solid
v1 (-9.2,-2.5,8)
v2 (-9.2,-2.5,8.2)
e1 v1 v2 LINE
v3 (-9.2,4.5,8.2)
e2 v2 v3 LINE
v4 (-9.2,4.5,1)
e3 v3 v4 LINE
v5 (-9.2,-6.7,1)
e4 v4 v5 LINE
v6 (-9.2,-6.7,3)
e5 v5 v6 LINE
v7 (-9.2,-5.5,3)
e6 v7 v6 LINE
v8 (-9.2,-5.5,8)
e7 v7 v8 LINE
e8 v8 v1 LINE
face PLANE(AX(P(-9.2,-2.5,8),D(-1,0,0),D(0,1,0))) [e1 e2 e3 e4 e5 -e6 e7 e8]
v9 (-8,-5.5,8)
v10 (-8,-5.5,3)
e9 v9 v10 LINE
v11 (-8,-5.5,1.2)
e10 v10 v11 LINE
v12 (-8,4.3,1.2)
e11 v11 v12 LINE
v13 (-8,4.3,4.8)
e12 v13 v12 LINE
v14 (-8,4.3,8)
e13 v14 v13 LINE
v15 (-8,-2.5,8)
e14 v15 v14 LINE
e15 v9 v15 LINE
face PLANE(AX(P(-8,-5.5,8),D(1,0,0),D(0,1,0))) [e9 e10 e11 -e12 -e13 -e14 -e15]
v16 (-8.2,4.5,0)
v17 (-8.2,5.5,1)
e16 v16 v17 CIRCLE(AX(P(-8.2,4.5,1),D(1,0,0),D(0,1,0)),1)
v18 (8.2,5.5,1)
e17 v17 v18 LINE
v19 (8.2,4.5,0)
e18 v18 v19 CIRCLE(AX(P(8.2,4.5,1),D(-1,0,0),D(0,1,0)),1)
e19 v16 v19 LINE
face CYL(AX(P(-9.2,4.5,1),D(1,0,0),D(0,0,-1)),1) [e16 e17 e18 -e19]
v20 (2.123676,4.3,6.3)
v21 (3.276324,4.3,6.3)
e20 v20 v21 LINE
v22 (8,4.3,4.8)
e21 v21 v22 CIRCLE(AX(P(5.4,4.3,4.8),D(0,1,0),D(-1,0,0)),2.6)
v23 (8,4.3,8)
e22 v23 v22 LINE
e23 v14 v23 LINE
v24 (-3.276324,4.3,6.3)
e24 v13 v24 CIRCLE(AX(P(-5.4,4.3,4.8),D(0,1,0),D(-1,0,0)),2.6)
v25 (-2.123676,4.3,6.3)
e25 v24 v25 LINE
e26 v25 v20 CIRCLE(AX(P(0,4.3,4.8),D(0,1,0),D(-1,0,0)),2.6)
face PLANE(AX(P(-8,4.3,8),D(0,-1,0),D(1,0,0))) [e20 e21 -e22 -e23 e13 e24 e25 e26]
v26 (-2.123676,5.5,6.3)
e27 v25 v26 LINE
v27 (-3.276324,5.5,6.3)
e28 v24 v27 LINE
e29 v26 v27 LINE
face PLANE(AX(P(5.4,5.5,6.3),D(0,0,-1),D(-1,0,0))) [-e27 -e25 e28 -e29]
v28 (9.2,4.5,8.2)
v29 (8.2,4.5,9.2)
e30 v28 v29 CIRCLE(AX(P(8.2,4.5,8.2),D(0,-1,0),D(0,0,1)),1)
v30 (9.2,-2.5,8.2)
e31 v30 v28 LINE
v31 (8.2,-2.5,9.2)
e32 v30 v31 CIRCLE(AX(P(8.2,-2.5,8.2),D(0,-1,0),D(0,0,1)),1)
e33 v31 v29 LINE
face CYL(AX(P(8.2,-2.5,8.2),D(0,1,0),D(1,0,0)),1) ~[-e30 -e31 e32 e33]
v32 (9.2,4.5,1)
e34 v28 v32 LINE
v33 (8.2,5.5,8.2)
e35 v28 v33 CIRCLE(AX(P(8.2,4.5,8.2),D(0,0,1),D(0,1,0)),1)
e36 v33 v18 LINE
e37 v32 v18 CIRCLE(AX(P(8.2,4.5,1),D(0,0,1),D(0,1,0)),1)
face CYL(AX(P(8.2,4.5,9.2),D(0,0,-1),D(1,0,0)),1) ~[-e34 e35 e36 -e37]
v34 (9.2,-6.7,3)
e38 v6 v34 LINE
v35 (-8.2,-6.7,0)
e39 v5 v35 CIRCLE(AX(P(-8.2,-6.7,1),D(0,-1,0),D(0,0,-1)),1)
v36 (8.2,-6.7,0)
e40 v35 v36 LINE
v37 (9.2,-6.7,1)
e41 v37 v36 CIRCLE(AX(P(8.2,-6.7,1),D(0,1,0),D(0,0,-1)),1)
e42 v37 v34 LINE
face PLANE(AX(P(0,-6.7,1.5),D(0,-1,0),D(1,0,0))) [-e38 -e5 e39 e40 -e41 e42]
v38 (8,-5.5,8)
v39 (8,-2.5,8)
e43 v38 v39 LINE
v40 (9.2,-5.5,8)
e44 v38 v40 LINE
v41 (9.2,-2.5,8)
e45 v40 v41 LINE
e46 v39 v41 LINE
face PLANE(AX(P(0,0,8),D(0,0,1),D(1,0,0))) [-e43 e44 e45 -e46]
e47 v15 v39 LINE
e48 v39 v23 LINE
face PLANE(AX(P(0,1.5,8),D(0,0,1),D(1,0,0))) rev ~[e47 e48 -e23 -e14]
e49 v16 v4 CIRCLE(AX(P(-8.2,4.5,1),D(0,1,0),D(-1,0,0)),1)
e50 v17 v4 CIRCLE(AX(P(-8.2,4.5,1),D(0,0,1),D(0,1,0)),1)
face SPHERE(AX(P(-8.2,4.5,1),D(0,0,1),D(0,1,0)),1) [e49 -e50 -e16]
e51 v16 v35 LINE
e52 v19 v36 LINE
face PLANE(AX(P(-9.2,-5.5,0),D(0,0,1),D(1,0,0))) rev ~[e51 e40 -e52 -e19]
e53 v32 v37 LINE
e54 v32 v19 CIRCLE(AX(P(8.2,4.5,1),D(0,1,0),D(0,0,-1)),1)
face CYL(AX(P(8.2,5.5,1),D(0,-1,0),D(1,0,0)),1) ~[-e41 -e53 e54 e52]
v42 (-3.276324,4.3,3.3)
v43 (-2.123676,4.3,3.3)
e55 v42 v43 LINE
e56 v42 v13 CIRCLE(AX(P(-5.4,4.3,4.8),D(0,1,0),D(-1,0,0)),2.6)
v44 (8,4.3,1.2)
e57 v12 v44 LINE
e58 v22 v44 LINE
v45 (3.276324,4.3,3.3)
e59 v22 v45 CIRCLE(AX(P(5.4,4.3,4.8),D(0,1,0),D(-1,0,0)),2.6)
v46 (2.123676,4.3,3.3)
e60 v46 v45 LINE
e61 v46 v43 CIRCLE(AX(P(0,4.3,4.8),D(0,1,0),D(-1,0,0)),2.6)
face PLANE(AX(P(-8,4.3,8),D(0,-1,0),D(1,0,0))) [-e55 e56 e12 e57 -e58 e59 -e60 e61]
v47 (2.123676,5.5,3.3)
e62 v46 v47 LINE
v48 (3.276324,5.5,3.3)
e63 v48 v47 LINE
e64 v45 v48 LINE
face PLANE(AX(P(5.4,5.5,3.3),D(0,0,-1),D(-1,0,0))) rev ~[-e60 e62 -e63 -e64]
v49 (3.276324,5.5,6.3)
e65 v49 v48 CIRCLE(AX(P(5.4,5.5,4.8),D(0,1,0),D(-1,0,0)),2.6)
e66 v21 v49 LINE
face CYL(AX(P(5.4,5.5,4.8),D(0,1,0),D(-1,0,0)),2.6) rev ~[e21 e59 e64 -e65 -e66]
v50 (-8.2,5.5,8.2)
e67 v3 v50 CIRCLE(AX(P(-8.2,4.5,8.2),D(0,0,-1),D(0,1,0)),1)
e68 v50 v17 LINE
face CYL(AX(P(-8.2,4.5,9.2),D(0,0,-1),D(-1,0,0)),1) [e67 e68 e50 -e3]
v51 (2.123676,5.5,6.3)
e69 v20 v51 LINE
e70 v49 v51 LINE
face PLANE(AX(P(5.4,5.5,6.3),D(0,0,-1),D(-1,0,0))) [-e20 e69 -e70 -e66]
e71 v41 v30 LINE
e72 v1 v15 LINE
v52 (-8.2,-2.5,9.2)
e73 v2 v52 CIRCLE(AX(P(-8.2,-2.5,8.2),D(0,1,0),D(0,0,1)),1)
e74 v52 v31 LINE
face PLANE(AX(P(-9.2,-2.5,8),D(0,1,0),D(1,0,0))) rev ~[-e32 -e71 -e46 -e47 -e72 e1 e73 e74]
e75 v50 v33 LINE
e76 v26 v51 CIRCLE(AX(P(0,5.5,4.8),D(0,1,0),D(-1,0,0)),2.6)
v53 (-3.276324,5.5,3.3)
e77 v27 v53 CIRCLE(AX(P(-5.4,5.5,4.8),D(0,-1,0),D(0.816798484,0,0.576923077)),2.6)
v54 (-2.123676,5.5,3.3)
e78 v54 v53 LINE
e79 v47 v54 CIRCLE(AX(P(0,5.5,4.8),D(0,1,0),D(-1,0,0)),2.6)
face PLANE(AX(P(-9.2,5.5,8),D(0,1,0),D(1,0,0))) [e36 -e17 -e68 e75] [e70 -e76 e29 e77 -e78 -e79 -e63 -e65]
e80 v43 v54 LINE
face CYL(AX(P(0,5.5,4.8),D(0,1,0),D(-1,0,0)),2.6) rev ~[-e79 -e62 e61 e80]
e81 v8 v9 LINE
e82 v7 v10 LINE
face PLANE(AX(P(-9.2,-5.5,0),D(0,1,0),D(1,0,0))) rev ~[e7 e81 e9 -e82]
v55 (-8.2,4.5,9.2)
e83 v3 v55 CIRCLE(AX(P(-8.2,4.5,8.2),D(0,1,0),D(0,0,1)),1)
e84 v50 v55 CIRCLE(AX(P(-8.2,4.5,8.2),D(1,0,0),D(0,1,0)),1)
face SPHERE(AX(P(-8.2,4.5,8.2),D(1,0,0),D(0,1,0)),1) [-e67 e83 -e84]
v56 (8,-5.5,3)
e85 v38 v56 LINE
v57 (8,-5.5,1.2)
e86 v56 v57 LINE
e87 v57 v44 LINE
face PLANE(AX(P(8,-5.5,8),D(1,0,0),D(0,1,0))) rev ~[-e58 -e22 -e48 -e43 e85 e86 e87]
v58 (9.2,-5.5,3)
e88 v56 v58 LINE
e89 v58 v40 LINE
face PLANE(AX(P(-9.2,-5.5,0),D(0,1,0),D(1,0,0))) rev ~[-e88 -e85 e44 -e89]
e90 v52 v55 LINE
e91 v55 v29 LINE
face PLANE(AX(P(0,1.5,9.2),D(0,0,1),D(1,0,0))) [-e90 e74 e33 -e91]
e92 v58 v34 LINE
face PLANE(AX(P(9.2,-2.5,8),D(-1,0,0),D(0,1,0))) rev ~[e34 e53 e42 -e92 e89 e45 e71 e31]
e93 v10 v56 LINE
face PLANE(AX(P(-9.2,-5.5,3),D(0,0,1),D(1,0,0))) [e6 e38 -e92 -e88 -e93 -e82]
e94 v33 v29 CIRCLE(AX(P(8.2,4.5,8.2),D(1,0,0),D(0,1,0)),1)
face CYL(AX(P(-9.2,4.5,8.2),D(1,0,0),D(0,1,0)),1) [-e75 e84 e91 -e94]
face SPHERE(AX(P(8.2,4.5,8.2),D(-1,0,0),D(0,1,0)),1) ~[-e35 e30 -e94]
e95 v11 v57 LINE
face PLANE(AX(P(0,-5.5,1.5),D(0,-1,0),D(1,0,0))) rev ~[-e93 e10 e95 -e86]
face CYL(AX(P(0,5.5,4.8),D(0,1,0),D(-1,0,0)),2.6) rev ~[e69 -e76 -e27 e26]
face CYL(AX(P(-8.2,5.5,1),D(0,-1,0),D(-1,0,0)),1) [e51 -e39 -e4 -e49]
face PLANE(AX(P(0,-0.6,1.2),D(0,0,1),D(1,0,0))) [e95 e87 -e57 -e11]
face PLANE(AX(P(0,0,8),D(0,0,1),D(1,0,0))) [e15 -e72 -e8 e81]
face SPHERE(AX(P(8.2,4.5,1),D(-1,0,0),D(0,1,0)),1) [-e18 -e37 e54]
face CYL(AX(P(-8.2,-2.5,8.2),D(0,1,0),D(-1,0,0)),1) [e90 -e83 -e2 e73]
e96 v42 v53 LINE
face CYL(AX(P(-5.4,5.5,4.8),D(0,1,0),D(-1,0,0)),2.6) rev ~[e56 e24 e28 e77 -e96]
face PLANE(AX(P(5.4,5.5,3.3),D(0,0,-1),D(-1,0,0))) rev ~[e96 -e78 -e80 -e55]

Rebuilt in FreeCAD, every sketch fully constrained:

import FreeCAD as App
import Part
import Sketcher

V = App.Vector


def edges_at(feature, points):
    """Names of the edges that pass closest to the given points."""
    edges = feature.Shape.Edges
    near = lambda p: min(range(len(edges)), key=lambda i: edges[i].distToShape(Part.Vertex(*p))[0])
    return sorted({f"Edge{near(p) + 1}" for p in points})


def add_polygon(sketch, points):
    """Adds a closed chain of lines whose ends are joined by coincident constraints."""
    first, n = sketch.GeometryCount, len(points)
    for a, b in zip(points, points[1:] + points[:1]):
        sketch.addGeometry(Part.LineSegment(App.Vector(*a, 0), App.Vector(*b, 0)), False)
    for i in range(n):
        sketch.addConstraint(Sketcher.Constraint("Coincident", first + i, 2, first + (i + 1) % n, 1))

doc = App.newDocument("Part")
params = doc.addObject("Spreadsheet::Sheet", "Params")
for row, (alias, value) in enumerate([
    ("sketch1_height", "11 mm"),
    ("sketch1_width", "18.4 mm"),
    ("pad1_length", "8 mm"),
    ("sketch2_diameter", "5.2 mm"),
    ("pocket1_length", "10 mm"),
    ("sketch3_width", "16 mm"),
    ("sketch3_height", "9.8 mm"),
    ("pocket2_length", "6.8 mm"),
    ("sketch4_height", "3 mm"),
    ("sketch4_width", "10.8 mm"),
    ("pocket3_length", "5 mm"),
    ("sketch5_height", "3 mm"),
    ("sketch5_width", "18.4 mm"),
    ("pad2_length", "1.2 mm"),
    ("sketch6_height", "8 mm"),
    ("sketch6_width", "18.4 mm"),
    ("pad3_length", "1.2 mm"),
    ("fillet_radius", "1 mm"),
], start=1):
    params.set(f"A{row}", alias)
    params.set(f"B{row}", "=" + value)
    params.setAlias(f"B{row}", alias)

body = doc.addObject("PartDesign::Body", "Body")

sketch1 = body.newObject("Sketcher::SketchObject", "Sketch")
sketch1.AttachmentSupport = (doc.getObject("XY_Plane"), [""])
sketch1.MapMode = "FlatFace"
add_polygon(sketch1, [(-9.2, 5.5), (-9.2, -5.5), (9.2, -5.5), (9.2, 5.5)])
sketch1.addConstraint(Sketcher.Constraint("Vertical", 0))
sketch1.addConstraint(Sketcher.Constraint("Horizontal", 1))
sketch1.addConstraint(Sketcher.Constraint("Vertical", 2))
sketch1.addConstraint(Sketcher.Constraint("Horizontal", 3))
sketch1.addConstraint(Sketcher.Constraint("Symmetric", 0, 2, 2, 2, -1, 1))
sketch1.addConstraint(Sketcher.Constraint("DistanceY", 0, 2, 0, 1, 11.0))
sketch1.addConstraint(Sketcher.Constraint("DistanceX", 1, 1, 1, 2, 18.4))
sketch1.setExpression("Constraints[9]", "Params.sketch1_height")
sketch1.setExpression("Constraints[10]", "Params.sketch1_width")
pad1 = body.newObject("PartDesign::Pad", "Pad")
pad1.Profile = sketch1
pad1.setExpression("Length", "Params.pad1_length")

sketch2 = body.newObject("Sketcher::SketchObject", "Sketch001")
sketch2.AttachmentSupport = (doc.getObject("XZ_Plane"), [""])
sketch2.MapMode = "FlatFace"
sketch2.AttachmentOffset = App.Placement(V(0, 0, -5.5), App.Rotation())
sketch2.addGeometry(Part.Circle(V(5.4, 4.8, 0), V(0, 0, 1), 2.6), False)
sketch2.addGeometry(Part.Circle(V(0, 4.8, 0), V(0, 0, 1), 2.6), False)
sketch2.addGeometry(Part.Circle(V(-5.4, 4.8, 0), V(0, 0, 1), 2.6), False)
sketch2.addConstraint(Sketcher.Constraint("Equal", 0, 1))
sketch2.addConstraint(Sketcher.Constraint("Equal", 1, 2))
sketch2.addConstraint(Sketcher.Constraint("Symmetric", 0, 3, 2, 3, -2))
sketch2.addConstraint(Sketcher.Constraint("PointOnObject", 1, 3, -2))
sketch2.addConstraint(Sketcher.Constraint("Horizontal", 0, 3, 1, 3))
sketch2.addConstraint(Sketcher.Constraint("Diameter", 0, 5.2))
sketch2.addConstraint(Sketcher.Constraint("DistanceX", -1, 1, 0, 3, 5.4))
sketch2.addConstraint(Sketcher.Constraint("DistanceY", -1, 1, 0, 3, 4.8))
sketch2.setExpression("Constraints[5]", "Params.sketch2_diameter")
pocket1 = body.newObject("PartDesign::Pocket", "Pocket")
pocket1.Profile = sketch2
pocket1.setExpression("Length", "Params.pocket1_length")
pocket1.Reversed = True

sketch3 = body.newObject("Sketcher::SketchObject", "Sketch002")
sketch3.AttachmentSupport = (doc.getObject("XY_Plane"), [""])
sketch3.MapMode = "FlatFace"
sketch3.AttachmentOffset = App.Placement(V(0, 0, 8), App.Rotation())
add_polygon(sketch3, [(-8, 4.3), (-8, -5.5), (8, -5.5), (8, 4.3)])
sketch3.addConstraint(Sketcher.Constraint("Vertical", 0))
sketch3.addConstraint(Sketcher.Constraint("Horizontal", 1))
sketch3.addConstraint(Sketcher.Constraint("Vertical", 2))
sketch3.addConstraint(Sketcher.Constraint("Horizontal", 3))
sketch3.addConstraint(Sketcher.Constraint("DistanceX", 1, 1, 1, 2, 16.0))
sketch3.addConstraint(Sketcher.Constraint("DistanceY", 0, 2, 0, 1, 9.8))
sketch3.addConstraint(Sketcher.Constraint("DistanceX", 0, 2, -1, 1, 8.0))
sketch3.addConstraint(Sketcher.Constraint("DistanceY", 0, 2, -1, 1, 5.5))
sketch3.setExpression("Constraints[8]", "Params.sketch3_width")
sketch3.setExpression("Constraints[9]", "Params.sketch3_height")
pocket2 = body.newObject("PartDesign::Pocket", "Pocket001")
pocket2.Profile = sketch3
pocket2.setExpression("Length", "Params.pocket2_length")

sketch4 = body.newObject("Sketcher::SketchObject", "Sketch003")
sketch4.AttachmentSupport = (doc.getObject("XZ_Plane"), [""])
sketch4.MapMode = "FlatFace"
sketch4.AttachmentOffset = App.Placement(V(0, 0, -5.5), App.Rotation())
add_polygon(sketch4, [(5.4, 6.3), (5.4, 3.3), (-5.4, 3.3), (-5.4, 6.3)])
sketch4.addConstraint(Sketcher.Constraint("Vertical", 0))
sketch4.addConstraint(Sketcher.Constraint("Horizontal", 1))
sketch4.addConstraint(Sketcher.Constraint("Vertical", 2))
sketch4.addConstraint(Sketcher.Constraint("Horizontal", 3))
sketch4.addConstraint(Sketcher.Constraint("DistanceY", 0, 2, 0, 1, 3.0))
sketch4.addConstraint(Sketcher.Constraint("DistanceX", 1, 2, 1, 1, 10.8))
sketch4.addConstraint(Sketcher.Constraint("DistanceX", -1, 1, 0, 2, 5.4))
sketch4.addConstraint(Sketcher.Constraint("DistanceY", -1, 1, 0, 2, 3.3))
sketch4.setExpression("Constraints[8]", "Params.sketch4_height")
sketch4.setExpression("Constraints[9]", "Params.sketch4_width")
pocket3 = body.newObject("PartDesign::Pocket", "Pocket002")
pocket3.Profile = sketch4
pocket3.setExpression("Length", "Params.pocket3_length")
pocket3.Reversed = True

sketch5 = body.newObject("Sketcher::SketchObject", "Sketch004")
sketch5.AttachmentSupport = (doc.getObject("XZ_Plane"), [""])
sketch5.MapMode = "FlatFace"
sketch5.AttachmentOffset = App.Placement(V(0, 0, 5.5), App.Rotation())
add_polygon(sketch5, [(-9.2, 3), (-9.2, 0), (9.2, 0), (9.2, 3)])
sketch5.addConstraint(Sketcher.Constraint("Vertical", 0))
sketch5.addConstraint(Sketcher.Constraint("Horizontal", 1))
sketch5.addConstraint(Sketcher.Constraint("Vertical", 2))
sketch5.addConstraint(Sketcher.Constraint("Horizontal", 3))
sketch5.addConstraint(Sketcher.Constraint("Symmetric", 0, 2, 1, 2, -1, 1))
sketch5.addConstraint(Sketcher.Constraint("DistanceY", 0, 2, 0, 1, 3.0))
sketch5.addConstraint(Sketcher.Constraint("DistanceX", 1, 1, 1, 2, 18.4))
sketch5.setExpression("Constraints[9]", "Params.sketch5_height")
sketch5.setExpression("Constraints[10]", "Params.sketch5_width")
pad2 = body.newObject("PartDesign::Pad", "Pad001")
pad2.Profile = sketch5
pad2.setExpression("Length", "Params.pad2_length")

sketch6 = body.newObject("Sketcher::SketchObject", "Sketch005")
sketch6.AttachmentSupport = (doc.getObject("XY_Plane"), [""])
sketch6.MapMode = "FlatFace"
sketch6.AttachmentOffset = App.Placement(V(0, 0, 8), App.Rotation())
add_polygon(sketch6, [(-9.2, 5.5), (-9.2, -2.5), (9.2, -2.5), (9.2, 5.5)])
sketch6.addConstraint(Sketcher.Constraint("Vertical", 0))
sketch6.addConstraint(Sketcher.Constraint("Horizontal", 1))
sketch6.addConstraint(Sketcher.Constraint("Vertical", 2))
sketch6.addConstraint(Sketcher.Constraint("Horizontal", 3))
sketch6.addConstraint(Sketcher.Constraint("DistanceY", 0, 2, 0, 1, 8.0))
sketch6.addConstraint(Sketcher.Constraint("DistanceX", 1, 1, 1, 2, 18.4))
sketch6.addConstraint(Sketcher.Constraint("DistanceX", 0, 2, -1, 1, 9.2))
sketch6.addConstraint(Sketcher.Constraint("DistanceY", 0, 2, -1, 1, 2.5))
sketch6.setExpression("Constraints[8]", "Params.sketch6_height")
sketch6.setExpression("Constraints[9]", "Params.sketch6_width")
pad3 = body.newObject("PartDesign::Pad", "Pad002")
pad3.Profile = sketch6
pad3.setExpression("Length", "Params.pad3_length")
doc.recompute()

fillet = body.newObject("PartDesign::Fillet", "Fillet")
fillet.Base = (pad3, edges_at(pad3, [
    (0, 5.5, 9.2),
    (-9.2, 5.5, 4.6),
    (0, 5.5, 0),
    (9.2, 5.5, 4.6),
    (9.2, 1.5, 9.2),
    (-9.2, 1.5, 9.2),
    (-9.2, -0.6, 0),
    (9.2, -0.6, 0),
]))
fillet.setExpression("Radius", "Params.fillet_radius")

doc.recompute()
